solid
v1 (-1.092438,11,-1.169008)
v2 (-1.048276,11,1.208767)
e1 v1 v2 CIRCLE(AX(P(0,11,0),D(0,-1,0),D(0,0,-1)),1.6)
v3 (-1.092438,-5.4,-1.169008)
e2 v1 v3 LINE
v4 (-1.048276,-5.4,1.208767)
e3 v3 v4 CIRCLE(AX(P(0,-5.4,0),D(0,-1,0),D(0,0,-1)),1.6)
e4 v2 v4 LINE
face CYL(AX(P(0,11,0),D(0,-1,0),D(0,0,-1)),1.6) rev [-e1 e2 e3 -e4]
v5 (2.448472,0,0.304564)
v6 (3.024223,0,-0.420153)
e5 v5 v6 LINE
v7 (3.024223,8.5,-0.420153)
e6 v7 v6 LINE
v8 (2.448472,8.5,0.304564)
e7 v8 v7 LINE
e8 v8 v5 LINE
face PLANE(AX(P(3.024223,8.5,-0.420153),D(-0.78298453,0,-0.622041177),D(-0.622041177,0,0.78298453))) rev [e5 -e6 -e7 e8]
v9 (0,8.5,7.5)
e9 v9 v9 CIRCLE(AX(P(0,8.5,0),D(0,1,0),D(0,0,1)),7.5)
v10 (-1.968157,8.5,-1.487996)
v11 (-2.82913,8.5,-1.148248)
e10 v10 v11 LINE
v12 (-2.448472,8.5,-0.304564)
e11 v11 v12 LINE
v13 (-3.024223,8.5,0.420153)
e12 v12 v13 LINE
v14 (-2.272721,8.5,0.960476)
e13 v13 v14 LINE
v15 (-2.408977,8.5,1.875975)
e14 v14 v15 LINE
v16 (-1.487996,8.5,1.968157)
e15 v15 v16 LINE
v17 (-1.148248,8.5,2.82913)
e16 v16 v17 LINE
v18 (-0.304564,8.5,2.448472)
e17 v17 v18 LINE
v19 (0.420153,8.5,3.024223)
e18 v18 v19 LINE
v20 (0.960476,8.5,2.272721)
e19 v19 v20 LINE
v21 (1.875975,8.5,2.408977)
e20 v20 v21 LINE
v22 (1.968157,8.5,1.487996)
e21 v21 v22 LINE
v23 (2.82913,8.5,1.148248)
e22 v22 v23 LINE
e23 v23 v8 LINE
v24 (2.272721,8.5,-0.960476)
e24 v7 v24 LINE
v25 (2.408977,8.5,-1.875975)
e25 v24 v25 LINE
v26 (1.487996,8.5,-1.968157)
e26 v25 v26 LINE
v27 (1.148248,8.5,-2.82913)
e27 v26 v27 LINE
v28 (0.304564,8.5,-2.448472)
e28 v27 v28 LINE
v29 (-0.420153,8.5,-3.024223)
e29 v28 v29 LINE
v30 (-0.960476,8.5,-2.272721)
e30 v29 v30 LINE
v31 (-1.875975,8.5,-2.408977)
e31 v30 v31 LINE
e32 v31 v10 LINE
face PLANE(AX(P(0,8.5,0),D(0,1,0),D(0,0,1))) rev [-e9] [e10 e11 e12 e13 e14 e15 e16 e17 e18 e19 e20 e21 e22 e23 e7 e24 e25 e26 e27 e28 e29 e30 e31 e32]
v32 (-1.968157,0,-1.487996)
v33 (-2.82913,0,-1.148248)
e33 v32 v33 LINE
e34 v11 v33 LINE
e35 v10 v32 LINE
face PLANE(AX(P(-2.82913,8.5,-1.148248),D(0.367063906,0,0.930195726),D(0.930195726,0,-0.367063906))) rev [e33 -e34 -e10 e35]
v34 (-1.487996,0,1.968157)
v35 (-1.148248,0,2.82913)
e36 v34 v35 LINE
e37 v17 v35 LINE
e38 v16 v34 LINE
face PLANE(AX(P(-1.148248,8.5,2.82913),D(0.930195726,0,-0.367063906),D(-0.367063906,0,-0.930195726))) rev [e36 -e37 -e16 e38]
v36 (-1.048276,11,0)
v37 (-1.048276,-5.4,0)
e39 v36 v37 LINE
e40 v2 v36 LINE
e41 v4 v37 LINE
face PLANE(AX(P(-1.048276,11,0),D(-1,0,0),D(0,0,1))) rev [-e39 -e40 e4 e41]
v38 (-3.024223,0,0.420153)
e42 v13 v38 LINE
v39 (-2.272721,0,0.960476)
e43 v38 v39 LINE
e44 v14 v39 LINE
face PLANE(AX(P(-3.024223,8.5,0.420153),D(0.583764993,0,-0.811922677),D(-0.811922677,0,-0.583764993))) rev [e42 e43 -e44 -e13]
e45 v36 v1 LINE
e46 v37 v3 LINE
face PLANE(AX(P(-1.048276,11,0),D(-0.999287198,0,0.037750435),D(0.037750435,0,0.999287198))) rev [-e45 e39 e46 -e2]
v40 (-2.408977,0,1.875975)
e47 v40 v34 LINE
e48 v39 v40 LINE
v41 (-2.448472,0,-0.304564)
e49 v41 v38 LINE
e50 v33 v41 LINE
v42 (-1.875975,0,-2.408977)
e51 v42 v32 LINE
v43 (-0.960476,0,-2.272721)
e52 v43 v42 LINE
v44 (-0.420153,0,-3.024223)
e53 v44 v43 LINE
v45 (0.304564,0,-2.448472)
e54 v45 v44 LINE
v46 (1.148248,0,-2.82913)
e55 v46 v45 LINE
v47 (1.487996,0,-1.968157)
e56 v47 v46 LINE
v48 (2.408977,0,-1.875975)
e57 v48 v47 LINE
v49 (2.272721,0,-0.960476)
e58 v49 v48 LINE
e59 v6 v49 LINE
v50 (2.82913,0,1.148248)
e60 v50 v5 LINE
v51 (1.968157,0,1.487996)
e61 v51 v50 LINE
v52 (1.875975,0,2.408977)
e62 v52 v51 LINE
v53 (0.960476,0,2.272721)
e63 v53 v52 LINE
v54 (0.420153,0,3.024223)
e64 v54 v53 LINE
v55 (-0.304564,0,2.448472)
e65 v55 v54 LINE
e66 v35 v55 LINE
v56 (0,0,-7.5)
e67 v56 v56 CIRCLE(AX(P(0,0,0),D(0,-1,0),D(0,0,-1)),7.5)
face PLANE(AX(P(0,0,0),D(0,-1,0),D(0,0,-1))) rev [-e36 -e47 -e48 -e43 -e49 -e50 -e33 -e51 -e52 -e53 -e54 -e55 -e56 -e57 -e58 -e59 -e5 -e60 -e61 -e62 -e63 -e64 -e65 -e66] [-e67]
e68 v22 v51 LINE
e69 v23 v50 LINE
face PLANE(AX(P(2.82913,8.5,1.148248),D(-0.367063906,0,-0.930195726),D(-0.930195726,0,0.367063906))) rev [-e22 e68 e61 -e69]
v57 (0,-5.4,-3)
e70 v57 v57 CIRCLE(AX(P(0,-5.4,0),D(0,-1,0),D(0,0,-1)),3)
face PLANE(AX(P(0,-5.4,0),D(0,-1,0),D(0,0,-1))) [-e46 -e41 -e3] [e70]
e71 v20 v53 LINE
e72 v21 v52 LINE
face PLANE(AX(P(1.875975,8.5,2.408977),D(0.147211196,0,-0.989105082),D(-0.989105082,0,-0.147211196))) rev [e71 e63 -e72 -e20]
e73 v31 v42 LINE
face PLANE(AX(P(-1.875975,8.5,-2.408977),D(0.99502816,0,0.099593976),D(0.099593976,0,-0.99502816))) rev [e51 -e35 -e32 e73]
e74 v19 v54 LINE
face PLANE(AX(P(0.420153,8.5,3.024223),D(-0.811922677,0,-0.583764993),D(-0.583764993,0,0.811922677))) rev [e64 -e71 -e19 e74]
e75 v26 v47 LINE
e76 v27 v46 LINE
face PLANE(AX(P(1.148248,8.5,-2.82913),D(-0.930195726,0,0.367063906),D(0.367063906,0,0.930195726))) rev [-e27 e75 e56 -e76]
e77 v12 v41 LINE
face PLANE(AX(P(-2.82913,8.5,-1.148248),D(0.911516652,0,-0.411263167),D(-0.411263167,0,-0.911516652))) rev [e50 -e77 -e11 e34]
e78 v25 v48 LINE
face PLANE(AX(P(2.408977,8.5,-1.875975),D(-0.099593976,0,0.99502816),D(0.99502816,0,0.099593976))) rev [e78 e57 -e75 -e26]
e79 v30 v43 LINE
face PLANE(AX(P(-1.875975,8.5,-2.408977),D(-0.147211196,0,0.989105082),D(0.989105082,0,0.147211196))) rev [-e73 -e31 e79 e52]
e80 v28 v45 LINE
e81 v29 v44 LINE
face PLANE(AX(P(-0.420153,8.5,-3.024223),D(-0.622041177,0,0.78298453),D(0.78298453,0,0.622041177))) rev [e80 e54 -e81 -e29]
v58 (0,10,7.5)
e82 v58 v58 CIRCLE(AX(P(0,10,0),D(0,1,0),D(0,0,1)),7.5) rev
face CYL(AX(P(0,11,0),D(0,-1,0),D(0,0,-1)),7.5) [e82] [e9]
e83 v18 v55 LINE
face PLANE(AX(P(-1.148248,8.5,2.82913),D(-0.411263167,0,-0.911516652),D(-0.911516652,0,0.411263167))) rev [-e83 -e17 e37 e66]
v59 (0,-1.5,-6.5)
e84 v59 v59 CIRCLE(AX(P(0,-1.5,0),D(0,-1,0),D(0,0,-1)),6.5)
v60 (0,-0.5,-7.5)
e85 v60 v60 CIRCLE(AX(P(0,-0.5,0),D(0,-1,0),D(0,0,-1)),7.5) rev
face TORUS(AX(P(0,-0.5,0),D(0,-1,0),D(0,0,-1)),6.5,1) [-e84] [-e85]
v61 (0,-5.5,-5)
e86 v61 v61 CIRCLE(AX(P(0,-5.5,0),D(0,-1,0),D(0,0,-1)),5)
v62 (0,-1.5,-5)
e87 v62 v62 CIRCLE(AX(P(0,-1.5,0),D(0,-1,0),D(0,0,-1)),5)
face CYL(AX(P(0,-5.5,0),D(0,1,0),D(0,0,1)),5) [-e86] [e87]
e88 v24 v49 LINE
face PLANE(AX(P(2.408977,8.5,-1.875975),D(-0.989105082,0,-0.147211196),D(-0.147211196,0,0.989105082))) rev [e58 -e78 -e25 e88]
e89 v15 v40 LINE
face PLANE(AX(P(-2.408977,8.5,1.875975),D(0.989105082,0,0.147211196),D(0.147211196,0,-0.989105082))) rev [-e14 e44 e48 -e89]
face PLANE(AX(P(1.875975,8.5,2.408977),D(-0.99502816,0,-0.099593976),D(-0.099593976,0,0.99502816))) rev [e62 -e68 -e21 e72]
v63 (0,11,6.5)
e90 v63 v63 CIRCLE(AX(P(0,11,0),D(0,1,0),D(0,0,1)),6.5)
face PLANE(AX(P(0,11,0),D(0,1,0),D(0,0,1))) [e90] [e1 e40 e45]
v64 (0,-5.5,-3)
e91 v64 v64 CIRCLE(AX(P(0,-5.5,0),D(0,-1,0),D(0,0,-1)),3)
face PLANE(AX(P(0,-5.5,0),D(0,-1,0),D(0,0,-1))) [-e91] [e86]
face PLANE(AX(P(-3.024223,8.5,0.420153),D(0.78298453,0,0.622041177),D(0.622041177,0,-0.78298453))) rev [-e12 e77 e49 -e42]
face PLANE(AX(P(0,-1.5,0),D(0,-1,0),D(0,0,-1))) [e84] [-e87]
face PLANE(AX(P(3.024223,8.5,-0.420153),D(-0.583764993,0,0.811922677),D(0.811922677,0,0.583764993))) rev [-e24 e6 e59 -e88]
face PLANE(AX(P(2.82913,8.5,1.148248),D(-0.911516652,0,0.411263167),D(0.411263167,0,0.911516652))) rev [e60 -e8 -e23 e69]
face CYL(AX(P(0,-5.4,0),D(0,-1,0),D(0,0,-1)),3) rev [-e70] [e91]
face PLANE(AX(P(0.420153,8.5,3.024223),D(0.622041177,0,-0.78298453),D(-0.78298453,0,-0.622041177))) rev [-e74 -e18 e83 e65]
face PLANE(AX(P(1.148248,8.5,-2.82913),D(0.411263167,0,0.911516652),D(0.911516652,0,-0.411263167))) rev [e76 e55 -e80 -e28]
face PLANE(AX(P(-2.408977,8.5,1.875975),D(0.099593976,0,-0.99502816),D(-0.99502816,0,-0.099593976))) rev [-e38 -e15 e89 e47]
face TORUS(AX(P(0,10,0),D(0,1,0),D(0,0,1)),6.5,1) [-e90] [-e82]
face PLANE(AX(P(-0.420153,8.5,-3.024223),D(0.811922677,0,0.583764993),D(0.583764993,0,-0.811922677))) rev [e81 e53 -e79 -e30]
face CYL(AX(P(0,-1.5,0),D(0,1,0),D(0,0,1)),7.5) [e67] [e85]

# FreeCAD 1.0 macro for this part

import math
import FreeCAD as App
import Part
import Sketcher

V = App.Vector
Q = App.Units.Quantity


def edges_at(feature, points):
    """Names of the edges that pass closest to the given points."""
    edges = feature.Shape.Edges
    near = lambda p: min(range(len(edges)), key=lambda i: edges[i].distToShape(Part.Vertex(*p))[0])
    return sorted({f"Edge{near(p) + 1}" for p in points})


def add_polygon(sketch, points):
    """Adds a closed chain of lines whose ends are joined by coincident constraints."""
    first, n = sketch.GeometryCount, len(points)
    for a, b in zip(points, points[1:] + points[:1]):
        sketch.addGeometry(Part.LineSegment(App.Vector(*a, 0), App.Vector(*b, 0)), False)
    for i in range(n):
        sketch.addConstraint(Sketcher.Constraint("Coincident", first + i, 2, first + (i + 1) % n, 1))

doc = App.newDocument("Part")
body = doc.addObject("PartDesign::Body", "Body")

# Sketch on XZ plane
sketch1 = body.newObject("Sketcher::SketchObject", "Sketch")
sketch1.AttachmentSupport = (doc.getObject("XZ_Plane"), [""])
sketch1.MapMode = "FlatFace"
add_polygon(sketch1, [(2.408977, -1.875975), (1.487996, -1.968157), (1.148248, -2.82913), (0.304564, -2.448472), (-0.420153, -3.024223), (-0.960476, -2.272721), (-1.875975, -2.408977), (-1.968157, -1.487996), (-2.82913, -1.148248), (-2.448472, -0.304564), (-3.024223, 0.420153), (-2.272721, 0.960476), (-2.408977, 1.875975), (-1.487996, 1.968157), (-1.148248, 2.82913), (-0.304564, 2.448472), (0.420153, 3.024223), (0.960476, 2.272721), (1.875975, 2.408977), (1.968157, 1.487996), (2.82913, 1.148248), (2.448472, 0.304564), (3.024223, -0.420153), (2.272721, -0.960476)])  # lines 0-23
sketch1.addConstraint(Sketcher.Constraint("Symmetric", 0, 2, 12, 2, -1, 1))
sketch1.addConstraint(Sketcher.Constraint("Symmetric", 1, 2, 13, 2, -1, 1))
sketch1.addConstraint(Sketcher.Constraint("Symmetric", 2, 2, 14, 2, -1, 1))
sketch1.addConstraint(Sketcher.Constraint("Symmetric", 3, 2, 15, 2, -1, 1))
sketch1.addConstraint(Sketcher.Constraint("Symmetric", 4, 2, 16, 2, -1, 1))
sketch1.addConstraint(Sketcher.Constraint("Symmetric", 5, 2, 17, 2, -1, 1))
sketch1.addConstraint(Sketcher.Constraint("Symmetric", 6, 2, 18, 2, -1, 1))
sketch1.addConstraint(Sketcher.Constraint("Symmetric", 7, 2, 19, 2, -1, 1))
sketch1.addConstraint(Sketcher.Constraint("Symmetric", 8, 2, 20, 2, -1, 1))
sketch1.addConstraint(Sketcher.Constraint("Symmetric", 9, 2, 21, 2, -1, 1))
sketch1.addConstraint(Sketcher.Constraint("Symmetric", 10, 2, 22, 2, -1, 1))
sketch1.addConstraint(Sketcher.Constraint("Symmetric", 11, 2, 23, 2, -1, 1))
sketch1.addConstraint(Sketcher.Constraint("Perpendicular", 0, 6))
sketch1.addConstraint(Sketcher.Constraint("Perpendicular", 1, 7))
sketch1.addConstraint(Sketcher.Constraint("Perpendicular", 2, 8))
sketch1.addConstraint(Sketcher.Constraint("Perpendicular", 3, 9))
sketch1.addConstraint(Sketcher.Constraint("Perpendicular", 4, 10))
sketch1.addConstraint(Sketcher.Constraint("Perpendicular", 5, 11))
sketch1.addConstraint(Sketcher.Constraint("Equal", 0, 1))
sketch1.addConstraint(Sketcher.Constraint("Equal", 1, 2))
sketch1.addConstraint(Sketcher.Constraint("Equal", 2, 3))
sketch1.addConstraint(Sketcher.Constraint("Equal", 3, 4))
sketch1.addConstraint(Sketcher.Constraint("Equal", 4, 5))
sketch1.addConstraint(Sketcher.Constraint("Equal", 5, 6))
sketch1.addConstraint(Sketcher.Constraint("Equal", 6, 7))
sketch1.addConstraint(Sketcher.Constraint("Equal", 7, 8))
sketch1.addConstraint(Sketcher.Constraint("Equal", 8, 9))
sketch1.addConstraint(Sketcher.Constraint("Equal", 9, 10))
sketch1.addConstraint(Sketcher.Constraint("Equal", 10, 11))
sketch1.addConstraint(Sketcher.Constraint("DistanceX", 3, 2, 1, 2, Q("1.568401 mm")))
sketch1.addConstraint(Sketcher.Constraint("DistanceY", 3, 2, 4, 2, Q("0.751502 mm")))
sketch1.addConstraint(Sketcher.Constraint("DistanceX", 5, 2, 4, 2, Q("0.915499 mm")))
sketch1.addConstraint(Sketcher.Constraint("DistanceX", -1, 1, 1, 2, Q("1.148248 mm")))
sketch1.addConstraint(Sketcher.Constraint("DistanceY", 1, 2, -1, 1, Q("2.82913 mm")))
sketch1.addConstraint(Sketcher.Constraint("DistanceY", 4, 2, -1, 1, Q("2.272721 mm")))
sketch1.addConstraint(Sketcher.Constraint("DistanceX", 1, 2, 0, 2, Q("0.339748 mm")))
pad1 = body.newObject("PartDesign::Pad", "Pad")
pad1.Profile = sketch1
pad1.Length = 8.5
pad1.Reversed = True

# Sketch on XZ plane
sketch2 = body.newObject("Sketcher::SketchObject", "Sketch001")
sketch2.AttachmentSupport = (doc.getObject("XZ_Plane"), [""])
sketch2.MapMode = "FlatFace"
sketch2.AttachmentOffset = App.Placement(V(0, 0, -8.5), App.Rotation())
sketch2.addGeometry(Part.Circle(V(0, 0, 0), V(0, 0, 1), 7.5), False)
sketch2.addConstraint(Sketcher.Constraint("Coincident", 0, 3, -1, 1))
sketch2.addConstraint(Sketcher.Constraint("Diameter", 0, Q("15 mm")))
pad2 = body.newObject("PartDesign::Pad", "Pad001")
pad2.Profile = sketch2
pad2.Length = 2.5
pad2.Reversed = True

# Sketch on XZ plane
sketch3 = body.newObject("Sketcher::SketchObject", "Sketch002")
sketch3.AttachmentSupport = (doc.getObject("XZ_Plane"), [""])
sketch3.MapMode = "FlatFace"
sketch3.AttachmentOffset = App.Placement(V(0, 0, 1.5), App.Rotation())
sketch3.addGeometry(Part.Circle(V(0, 0, 0), V(0, 0, 1), 7.5), False)
sketch3.addConstraint(Sketcher.Constraint("Coincident", 0, 3, -1, 1))
sketch3.addConstraint(Sketcher.Constraint("Diameter", 0, Q("15 mm")))
pad3 = body.newObject("PartDesign::Pad", "Pad002")
pad3.Profile = sketch3
pad3.Length = 1.5
pad3.Reversed = True

# Sketch on XZ plane
sketch4 = body.newObject("Sketcher::SketchObject", "Sketch003")
sketch4.AttachmentSupport = (doc.getObject("XZ_Plane"), [""])
sketch4.MapMode = "FlatFace"
sketch4.AttachmentOffset = App.Placement(V(0, 0, 1.5), App.Rotation())
sketch4.addGeometry(Part.Circle(V(0, 0, 0), V(0, 0, 1), 5), False)
sketch4.addConstraint(Sketcher.Constraint("Coincident", 0, 3, -1, 1))
sketch4.addConstraint(Sketcher.Constraint("Diameter", 0, Q("10 mm")))
pad4 = body.newObject("PartDesign::Pad", "Pad003")
pad4.Profile = sketch4
pad4.Length = 4

# Sketch on XZ plane
sketch5 = body.newObject("Sketcher::SketchObject", "Sketch004")
sketch5.AttachmentSupport = (doc.getObject("XZ_Plane"), [""])
sketch5.MapMode = "FlatFace"
sketch5.AttachmentOffset = App.Placement(V(0, 0, 5.5), App.Rotation())
sketch5.addGeometry(Part.Circle(V(0, 0, 0), V(0, 0, 1), 3), False)
sketch5.addConstraint(Sketcher.Constraint("Coincident", 0, 3, -1, 1))
sketch5.addConstraint(Sketcher.Constraint("Diameter", 0, Q("6 mm")))
pocket1 = body.newObject("PartDesign::Pocket", "Pocket")
pocket1.Profile = sketch5
pocket1.Length = 0.1
doc.recompute()

fillet = body.newObject("PartDesign::Fillet", "Fillet")
fillet.Base = (pocket1, edges_at(pocket1, [(0, 11, -7.5), (0, -1.5, -7.5)]))
fillet.Radius = 1

# Sketch on XZ plane
sketch6 = body.newObject("Sketcher::SketchObject", "Sketch005")
sketch6.AttachmentSupport = (doc.getObject("XZ_Plane"), [""])
sketch6.MapMode = "FlatFace"
sketch6.AttachmentOffset = App.Placement(V(0, 0, 5.4), App.Rotation())
sketch6.addGeometry(Part.LineSegment(V(-1.048276, 0, 0), V(-1.092438, -1.169008, 0)), False)
sketch6.addGeometry(Part.ArcOfCircle(Part.Circle(V(0, 0, 0), V(0, 0, 1), 1.6), math.radians(-133.060771), math.radians(130.932725)), False)
sketch6.addGeometry(Part.LineSegment(V(-1.048276, 1.208767, 0), V(-1.048276, 0, 0)), False)
sketch6.addConstraint(Sketcher.Constraint("Coincident", 0, 2, 1, 1))
sketch6.addConstraint(Sketcher.Constraint("Coincident", 1, 2, 2, 1))
sketch6.addConstraint(Sketcher.Constraint("Coincident", 2, 2, 0, 1))
sketch6.addConstraint(Sketcher.Constraint("Vertical", 2))
sketch6.addConstraint(Sketcher.Constraint("Coincident", 1, 3, -1, 1))
sketch6.addConstraint(Sketcher.Constraint("PointOnObject", 2, 2, -1))
sketch6.addConstraint(Sketcher.Constraint("Radius", 1, Q("1.6 mm")))
sketch6.addConstraint(Sketcher.Constraint("Distance", 0, Q("1.169842 mm")))
sketch6.addConstraint(Sketcher.Constraint("DistanceY", 2, 2, 2, 1, Q("1.208767 mm")))
pocket2 = body.newObject("PartDesign::Pocket", "Pocket001")
pocket2.Profile = sketch6
pocket2.Type = "ThroughAll"

doc.recompute()
